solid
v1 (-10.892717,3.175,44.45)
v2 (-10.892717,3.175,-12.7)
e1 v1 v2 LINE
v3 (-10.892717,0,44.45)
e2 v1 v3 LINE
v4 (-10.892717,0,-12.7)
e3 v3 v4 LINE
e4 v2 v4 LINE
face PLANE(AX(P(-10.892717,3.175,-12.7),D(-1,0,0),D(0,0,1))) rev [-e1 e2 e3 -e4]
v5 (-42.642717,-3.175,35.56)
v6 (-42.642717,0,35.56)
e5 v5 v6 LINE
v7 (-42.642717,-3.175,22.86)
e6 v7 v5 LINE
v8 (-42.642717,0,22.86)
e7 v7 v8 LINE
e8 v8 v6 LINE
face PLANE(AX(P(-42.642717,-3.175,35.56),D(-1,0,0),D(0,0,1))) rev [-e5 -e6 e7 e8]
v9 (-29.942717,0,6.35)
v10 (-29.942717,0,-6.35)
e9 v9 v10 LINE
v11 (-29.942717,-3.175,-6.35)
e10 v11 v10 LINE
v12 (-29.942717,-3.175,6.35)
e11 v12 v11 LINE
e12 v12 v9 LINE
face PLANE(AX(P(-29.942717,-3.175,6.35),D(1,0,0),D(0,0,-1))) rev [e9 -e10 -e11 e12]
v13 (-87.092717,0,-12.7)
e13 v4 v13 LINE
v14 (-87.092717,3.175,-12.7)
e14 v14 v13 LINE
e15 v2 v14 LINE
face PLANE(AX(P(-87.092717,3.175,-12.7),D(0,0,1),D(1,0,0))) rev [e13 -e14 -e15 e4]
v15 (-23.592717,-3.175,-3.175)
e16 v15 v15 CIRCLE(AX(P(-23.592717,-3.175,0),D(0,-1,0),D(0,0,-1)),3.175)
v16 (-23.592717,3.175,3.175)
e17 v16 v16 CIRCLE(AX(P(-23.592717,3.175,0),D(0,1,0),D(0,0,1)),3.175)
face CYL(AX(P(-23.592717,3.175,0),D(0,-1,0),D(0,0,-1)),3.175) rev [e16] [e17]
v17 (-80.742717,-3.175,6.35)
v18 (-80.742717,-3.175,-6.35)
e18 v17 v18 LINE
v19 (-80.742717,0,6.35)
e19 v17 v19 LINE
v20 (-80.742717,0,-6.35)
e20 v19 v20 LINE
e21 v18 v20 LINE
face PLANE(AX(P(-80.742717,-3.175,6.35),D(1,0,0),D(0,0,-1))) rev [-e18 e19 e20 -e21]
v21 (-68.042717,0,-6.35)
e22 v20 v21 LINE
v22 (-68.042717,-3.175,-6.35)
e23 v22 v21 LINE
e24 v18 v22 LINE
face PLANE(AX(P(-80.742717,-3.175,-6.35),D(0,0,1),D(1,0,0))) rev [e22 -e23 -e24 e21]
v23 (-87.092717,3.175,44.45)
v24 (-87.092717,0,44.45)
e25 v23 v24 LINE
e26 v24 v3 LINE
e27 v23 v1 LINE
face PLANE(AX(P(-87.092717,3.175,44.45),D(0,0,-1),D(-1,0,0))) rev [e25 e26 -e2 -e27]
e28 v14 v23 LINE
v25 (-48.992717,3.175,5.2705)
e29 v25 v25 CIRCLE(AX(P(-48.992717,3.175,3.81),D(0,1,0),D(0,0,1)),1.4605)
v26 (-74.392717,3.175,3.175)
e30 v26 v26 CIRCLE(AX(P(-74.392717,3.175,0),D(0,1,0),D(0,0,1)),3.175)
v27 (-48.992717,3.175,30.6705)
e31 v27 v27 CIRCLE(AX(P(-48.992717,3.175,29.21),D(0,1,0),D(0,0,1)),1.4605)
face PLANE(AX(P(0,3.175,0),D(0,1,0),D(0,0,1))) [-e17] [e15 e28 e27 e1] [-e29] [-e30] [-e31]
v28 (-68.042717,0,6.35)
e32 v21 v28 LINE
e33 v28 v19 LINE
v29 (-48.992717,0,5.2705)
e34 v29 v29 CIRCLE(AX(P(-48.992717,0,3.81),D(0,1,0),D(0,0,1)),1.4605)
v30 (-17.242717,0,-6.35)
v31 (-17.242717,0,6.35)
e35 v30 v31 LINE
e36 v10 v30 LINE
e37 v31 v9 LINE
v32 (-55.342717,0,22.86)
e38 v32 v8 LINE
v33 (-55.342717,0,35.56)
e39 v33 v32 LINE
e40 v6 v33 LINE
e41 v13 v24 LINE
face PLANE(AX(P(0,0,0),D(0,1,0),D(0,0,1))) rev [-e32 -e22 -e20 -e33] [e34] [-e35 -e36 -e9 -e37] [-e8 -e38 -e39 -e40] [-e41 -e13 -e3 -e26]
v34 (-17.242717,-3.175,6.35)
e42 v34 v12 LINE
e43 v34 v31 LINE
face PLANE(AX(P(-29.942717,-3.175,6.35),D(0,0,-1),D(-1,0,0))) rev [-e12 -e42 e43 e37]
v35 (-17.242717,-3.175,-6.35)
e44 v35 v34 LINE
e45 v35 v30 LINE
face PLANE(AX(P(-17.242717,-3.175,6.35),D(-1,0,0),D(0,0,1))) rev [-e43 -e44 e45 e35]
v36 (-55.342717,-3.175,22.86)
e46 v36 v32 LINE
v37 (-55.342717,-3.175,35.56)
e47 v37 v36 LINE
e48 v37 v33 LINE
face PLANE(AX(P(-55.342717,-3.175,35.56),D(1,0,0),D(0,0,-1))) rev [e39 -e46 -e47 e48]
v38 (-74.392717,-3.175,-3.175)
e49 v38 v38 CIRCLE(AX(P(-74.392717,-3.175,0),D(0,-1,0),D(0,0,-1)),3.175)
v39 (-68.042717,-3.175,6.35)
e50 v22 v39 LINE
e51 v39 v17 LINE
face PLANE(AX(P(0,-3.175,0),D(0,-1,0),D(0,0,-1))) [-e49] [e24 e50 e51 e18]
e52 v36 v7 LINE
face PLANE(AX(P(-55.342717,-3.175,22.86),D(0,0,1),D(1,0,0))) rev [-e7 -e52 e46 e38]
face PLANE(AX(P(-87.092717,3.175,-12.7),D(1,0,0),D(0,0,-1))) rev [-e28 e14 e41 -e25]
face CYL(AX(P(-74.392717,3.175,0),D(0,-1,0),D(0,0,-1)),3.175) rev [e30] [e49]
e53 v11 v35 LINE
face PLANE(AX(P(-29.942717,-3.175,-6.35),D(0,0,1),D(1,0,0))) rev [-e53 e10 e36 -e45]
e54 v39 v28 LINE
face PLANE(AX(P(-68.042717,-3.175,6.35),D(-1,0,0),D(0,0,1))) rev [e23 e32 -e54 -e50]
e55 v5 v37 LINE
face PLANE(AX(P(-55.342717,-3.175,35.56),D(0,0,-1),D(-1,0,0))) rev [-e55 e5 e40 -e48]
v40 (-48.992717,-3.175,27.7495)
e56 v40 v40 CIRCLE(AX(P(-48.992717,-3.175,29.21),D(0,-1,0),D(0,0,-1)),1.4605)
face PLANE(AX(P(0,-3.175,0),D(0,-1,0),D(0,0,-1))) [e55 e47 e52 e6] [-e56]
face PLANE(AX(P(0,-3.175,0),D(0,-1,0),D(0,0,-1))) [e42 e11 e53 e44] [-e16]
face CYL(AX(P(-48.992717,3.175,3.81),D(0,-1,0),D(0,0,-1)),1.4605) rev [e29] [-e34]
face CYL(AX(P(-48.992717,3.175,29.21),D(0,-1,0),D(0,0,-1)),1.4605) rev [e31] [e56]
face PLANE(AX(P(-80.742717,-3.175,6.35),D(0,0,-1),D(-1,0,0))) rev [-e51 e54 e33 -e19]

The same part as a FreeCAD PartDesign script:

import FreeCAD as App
import Part
import Sketcher
Q = App.Units.Quantity


def add_polygon(sketch, points):
    """Adds a closed chain of lines whose ends are joined by coincident constraints."""
    first, n = sketch.GeometryCount, len(points)
    for a, b in zip(points, points[1:] + points[:1]):
        sketch.addGeometry(Part.LineSegment(App.Vector(*a, 0), App.Vector(*b, 0)), False)
    for i in range(n):
        sketch.addConstraint(Sketcher.Constraint("Coincident", first + i, 2, first + (i + 1) % n, 1))

doc = App.newDocument("Part")
body = doc.addObject("PartDesign::Body", "Body")

# Sketch on XZ plane
sketch1 = doc.addObject("Sketcher::SketchObject", "Sketch")
body.addObject(sketch1)
sketch1.AttachmentSupport = (doc.XZ_Plane, [""])
sketch1.MapMode = "FlatFace"
add_polygon(sketch1, [(-87.1, -12.7), (-87.1, 44.5), (-10.9, 44.5), (-10.9, -12.7)])  # lines 0-3
sketch1.addGeometry(Part.Circle(App.Vector(-49, 29.2, 0), App.Vector(0, 0, 1), 1.5), False)  # 4
sketch1.addGeometry(Part.Circle(App.Vector(-74.4, 0, 0), App.Vector(0, 0, 1), 3.2), False)  # 5
sketch1.addGeometry(Part.Circle(App.Vector(-49, 3.8, 0), App.Vector(0, 0, 1), 1.5), False)  # 6
sketch1.addGeometry(Part.Circle(App.Vector(-23.6, 0, 0), App.Vector(0, 0, 1), 3.2), False)  # 7
sketch1.addConstraint([
    Sketcher.Constraint("Vertical", 0),
    Sketcher.Constraint("Horizontal", 1),
    Sketcher.Constraint("Vertical", 2),
    Sketcher.Constraint("Horizontal", 3),
    Sketcher.Constraint("Equal", 4, 6),
    Sketcher.Constraint("Equal", 5, 7),
    Sketcher.Constraint("PointOnObject", 5, 3, -1),
    Sketcher.Constraint("PointOnObject", 7, 3, -1),
    Sketcher.Constraint("Vertical", 4, 3, 6, 3),
    Sketcher.Constraint("Diameter", 5, Q("0.25 in")),
    Sketcher.Constraint("DistanceX", 1, 1, 1, 2, Q("3 in")),
    Sketcher.Constraint("Diameter", 4, Q("0.115 in")),
    Sketcher.Constraint("DistanceX", 5, 3, 4, 3, Q("1 in")),
    Sketcher.Constraint("DistanceY", 6, 3, 4, 3, Q("1 in")),
    Sketcher.Constraint("DistanceX", 6, 3, 7, 3, Q("1 in")),
    Sketcher.Constraint("DistanceY", 0, 1, 0, 2, Q("2.25 in")),
    Sketcher.Constraint("DistanceY", 2, 2, -1, 1, Q("0.5 in")),
    Sketcher.Constraint("DistanceX", 0, 2, 4, 3, Q("1.5 in")),
    Sketcher.Constraint("DistanceY", 4, 3, 0, 2, Q("0.6 in")),
    Sketcher.Constraint("DistanceX", 4, 3, -1, 1, 48.992717),
])
pad1 = doc.addObject("PartDesign::Pad", "Pad")
body.addObject(pad1)
pad1.Profile = sketch1
pad1.Length = Q("0.125 in")
pad1.Reversed = True

# Sketch on XZ plane
sketch2 = doc.addObject("Sketcher::SketchObject", "Sketch001")
body.addObject(sketch2)
sketch2.AttachmentSupport = (doc.XZ_Plane, [""])
sketch2.MapMode = "FlatFace"
sketch2.AttachmentOffset = App.Placement(App.Vector(0, 0, 0.125 * 25.4), App.Rotation())
add_polygon(sketch2, [(-80.7, 6.3), (-80.7, -6.3), (-68, -6.3), (-68, 6.3)])  # lines 0-3
sketch2.addGeometry(Part.Circle(App.Vector(-74.4, 0, 0), App.Vector(0, 0, 1), 3.2), False)  # 4
add_polygon(sketch2, [(-29.9, 6.3), (-29.9, -6.3), (-17.2, -6.3), (-17.2, 6.3)])  # lines 5-8
sketch2.addGeometry(Part.Circle(App.Vector(-23.6, 0, 0), App.Vector(0, 0, 1), 3.2), False)  # 9
add_polygon(sketch2, [(-55.3, 35.6), (-55.3, 22.9), (-42.6, 22.9), (-42.6, 35.6)])  # lines 10-13
sketch2.addGeometry(Part.Circle(App.Vector(-49, 29.2, 0), App.Vector(0, 0, 1), 1.5), False)  # 14
sketch2.addConstraint([
    Sketcher.Constraint("Vertical", 0),
    Sketcher.Constraint("Horizontal", 1),
    Sketcher.Constraint("Vertical", 2),
    Sketcher.Constraint("Horizontal", 3),
    Sketcher.Constraint("Vertical", 5),
    Sketcher.Constraint("Horizontal", 6),
    Sketcher.Constraint("Vertical", 7),
    Sketcher.Constraint("Horizontal", 8),
    Sketcher.Constraint("Vertical", 10),
    Sketcher.Constraint("Horizontal", 11),
    Sketcher.Constraint("Vertical", 12),
    Sketcher.Constraint("Horizontal", 13),
    Sketcher.Constraint("Equal", 4, 9),
    Sketcher.Constraint("PointOnObject", 4, 3, -1),
    Sketcher.Constraint("PointOnObject", 9, 3, -1),
    Sketcher.Constraint("Horizontal", 1, 2, 5, 2),
    Sketcher.Constraint("Horizontal", 3, 2, 7, 2),
    Sketcher.Constraint("Equal", 3, 6),
    Sketcher.Constraint("Equal", 8, 11),
    Sketcher.Constraint("Equal", 13, 0),
    Sketcher.Constraint("Equal", 7, 10),
    Sketcher.Constraint("Diameter", 4, Q("0.25 in")),
    Sketcher.Constraint("Diameter", 14, Q("0.115 in")),
    Sketcher.Constraint("DistanceX", 1, 1, 1, 2, Q("0.5 in")),
    Sketcher.Constraint("DistanceX", 4, 3, 9, 3, Q("2 in")),
    Sketcher.Constraint("DistanceX", 4, 3, 14, 3, Q("1 in")),
    Sketcher.Constraint("DistanceX", 1, 2, 6, 2, Q("2 in")),
    Sketcher.Constraint("DistanceX", 10, 2, 8, 2, Q("1 in")),
    Sketcher.Constraint("DistanceY", -1, 1, 10, 2, Q("0.9 in")),
    Sketcher.Constraint("DistanceY", 0, 2, 14, 3, Q("1.4 in")),
    Sketcher.Constraint("DistanceY", -1, 1, 14, 3, Q("1.15 in")),
    Sketcher.Constraint("DistanceX", 0, 2, 4, 3, Q("0.25 in")),
    Sketcher.Constraint("DistanceX", 4, 3, -1, 1, 74.392717),
])
pad2 = doc.addObject("PartDesign::Pad", "Pad001")
body.addObject(pad2)
pad2.Profile = sketch2
pad2.Length = Q("0.125 in")
pad2.Reversed = True

doc.recompute()
